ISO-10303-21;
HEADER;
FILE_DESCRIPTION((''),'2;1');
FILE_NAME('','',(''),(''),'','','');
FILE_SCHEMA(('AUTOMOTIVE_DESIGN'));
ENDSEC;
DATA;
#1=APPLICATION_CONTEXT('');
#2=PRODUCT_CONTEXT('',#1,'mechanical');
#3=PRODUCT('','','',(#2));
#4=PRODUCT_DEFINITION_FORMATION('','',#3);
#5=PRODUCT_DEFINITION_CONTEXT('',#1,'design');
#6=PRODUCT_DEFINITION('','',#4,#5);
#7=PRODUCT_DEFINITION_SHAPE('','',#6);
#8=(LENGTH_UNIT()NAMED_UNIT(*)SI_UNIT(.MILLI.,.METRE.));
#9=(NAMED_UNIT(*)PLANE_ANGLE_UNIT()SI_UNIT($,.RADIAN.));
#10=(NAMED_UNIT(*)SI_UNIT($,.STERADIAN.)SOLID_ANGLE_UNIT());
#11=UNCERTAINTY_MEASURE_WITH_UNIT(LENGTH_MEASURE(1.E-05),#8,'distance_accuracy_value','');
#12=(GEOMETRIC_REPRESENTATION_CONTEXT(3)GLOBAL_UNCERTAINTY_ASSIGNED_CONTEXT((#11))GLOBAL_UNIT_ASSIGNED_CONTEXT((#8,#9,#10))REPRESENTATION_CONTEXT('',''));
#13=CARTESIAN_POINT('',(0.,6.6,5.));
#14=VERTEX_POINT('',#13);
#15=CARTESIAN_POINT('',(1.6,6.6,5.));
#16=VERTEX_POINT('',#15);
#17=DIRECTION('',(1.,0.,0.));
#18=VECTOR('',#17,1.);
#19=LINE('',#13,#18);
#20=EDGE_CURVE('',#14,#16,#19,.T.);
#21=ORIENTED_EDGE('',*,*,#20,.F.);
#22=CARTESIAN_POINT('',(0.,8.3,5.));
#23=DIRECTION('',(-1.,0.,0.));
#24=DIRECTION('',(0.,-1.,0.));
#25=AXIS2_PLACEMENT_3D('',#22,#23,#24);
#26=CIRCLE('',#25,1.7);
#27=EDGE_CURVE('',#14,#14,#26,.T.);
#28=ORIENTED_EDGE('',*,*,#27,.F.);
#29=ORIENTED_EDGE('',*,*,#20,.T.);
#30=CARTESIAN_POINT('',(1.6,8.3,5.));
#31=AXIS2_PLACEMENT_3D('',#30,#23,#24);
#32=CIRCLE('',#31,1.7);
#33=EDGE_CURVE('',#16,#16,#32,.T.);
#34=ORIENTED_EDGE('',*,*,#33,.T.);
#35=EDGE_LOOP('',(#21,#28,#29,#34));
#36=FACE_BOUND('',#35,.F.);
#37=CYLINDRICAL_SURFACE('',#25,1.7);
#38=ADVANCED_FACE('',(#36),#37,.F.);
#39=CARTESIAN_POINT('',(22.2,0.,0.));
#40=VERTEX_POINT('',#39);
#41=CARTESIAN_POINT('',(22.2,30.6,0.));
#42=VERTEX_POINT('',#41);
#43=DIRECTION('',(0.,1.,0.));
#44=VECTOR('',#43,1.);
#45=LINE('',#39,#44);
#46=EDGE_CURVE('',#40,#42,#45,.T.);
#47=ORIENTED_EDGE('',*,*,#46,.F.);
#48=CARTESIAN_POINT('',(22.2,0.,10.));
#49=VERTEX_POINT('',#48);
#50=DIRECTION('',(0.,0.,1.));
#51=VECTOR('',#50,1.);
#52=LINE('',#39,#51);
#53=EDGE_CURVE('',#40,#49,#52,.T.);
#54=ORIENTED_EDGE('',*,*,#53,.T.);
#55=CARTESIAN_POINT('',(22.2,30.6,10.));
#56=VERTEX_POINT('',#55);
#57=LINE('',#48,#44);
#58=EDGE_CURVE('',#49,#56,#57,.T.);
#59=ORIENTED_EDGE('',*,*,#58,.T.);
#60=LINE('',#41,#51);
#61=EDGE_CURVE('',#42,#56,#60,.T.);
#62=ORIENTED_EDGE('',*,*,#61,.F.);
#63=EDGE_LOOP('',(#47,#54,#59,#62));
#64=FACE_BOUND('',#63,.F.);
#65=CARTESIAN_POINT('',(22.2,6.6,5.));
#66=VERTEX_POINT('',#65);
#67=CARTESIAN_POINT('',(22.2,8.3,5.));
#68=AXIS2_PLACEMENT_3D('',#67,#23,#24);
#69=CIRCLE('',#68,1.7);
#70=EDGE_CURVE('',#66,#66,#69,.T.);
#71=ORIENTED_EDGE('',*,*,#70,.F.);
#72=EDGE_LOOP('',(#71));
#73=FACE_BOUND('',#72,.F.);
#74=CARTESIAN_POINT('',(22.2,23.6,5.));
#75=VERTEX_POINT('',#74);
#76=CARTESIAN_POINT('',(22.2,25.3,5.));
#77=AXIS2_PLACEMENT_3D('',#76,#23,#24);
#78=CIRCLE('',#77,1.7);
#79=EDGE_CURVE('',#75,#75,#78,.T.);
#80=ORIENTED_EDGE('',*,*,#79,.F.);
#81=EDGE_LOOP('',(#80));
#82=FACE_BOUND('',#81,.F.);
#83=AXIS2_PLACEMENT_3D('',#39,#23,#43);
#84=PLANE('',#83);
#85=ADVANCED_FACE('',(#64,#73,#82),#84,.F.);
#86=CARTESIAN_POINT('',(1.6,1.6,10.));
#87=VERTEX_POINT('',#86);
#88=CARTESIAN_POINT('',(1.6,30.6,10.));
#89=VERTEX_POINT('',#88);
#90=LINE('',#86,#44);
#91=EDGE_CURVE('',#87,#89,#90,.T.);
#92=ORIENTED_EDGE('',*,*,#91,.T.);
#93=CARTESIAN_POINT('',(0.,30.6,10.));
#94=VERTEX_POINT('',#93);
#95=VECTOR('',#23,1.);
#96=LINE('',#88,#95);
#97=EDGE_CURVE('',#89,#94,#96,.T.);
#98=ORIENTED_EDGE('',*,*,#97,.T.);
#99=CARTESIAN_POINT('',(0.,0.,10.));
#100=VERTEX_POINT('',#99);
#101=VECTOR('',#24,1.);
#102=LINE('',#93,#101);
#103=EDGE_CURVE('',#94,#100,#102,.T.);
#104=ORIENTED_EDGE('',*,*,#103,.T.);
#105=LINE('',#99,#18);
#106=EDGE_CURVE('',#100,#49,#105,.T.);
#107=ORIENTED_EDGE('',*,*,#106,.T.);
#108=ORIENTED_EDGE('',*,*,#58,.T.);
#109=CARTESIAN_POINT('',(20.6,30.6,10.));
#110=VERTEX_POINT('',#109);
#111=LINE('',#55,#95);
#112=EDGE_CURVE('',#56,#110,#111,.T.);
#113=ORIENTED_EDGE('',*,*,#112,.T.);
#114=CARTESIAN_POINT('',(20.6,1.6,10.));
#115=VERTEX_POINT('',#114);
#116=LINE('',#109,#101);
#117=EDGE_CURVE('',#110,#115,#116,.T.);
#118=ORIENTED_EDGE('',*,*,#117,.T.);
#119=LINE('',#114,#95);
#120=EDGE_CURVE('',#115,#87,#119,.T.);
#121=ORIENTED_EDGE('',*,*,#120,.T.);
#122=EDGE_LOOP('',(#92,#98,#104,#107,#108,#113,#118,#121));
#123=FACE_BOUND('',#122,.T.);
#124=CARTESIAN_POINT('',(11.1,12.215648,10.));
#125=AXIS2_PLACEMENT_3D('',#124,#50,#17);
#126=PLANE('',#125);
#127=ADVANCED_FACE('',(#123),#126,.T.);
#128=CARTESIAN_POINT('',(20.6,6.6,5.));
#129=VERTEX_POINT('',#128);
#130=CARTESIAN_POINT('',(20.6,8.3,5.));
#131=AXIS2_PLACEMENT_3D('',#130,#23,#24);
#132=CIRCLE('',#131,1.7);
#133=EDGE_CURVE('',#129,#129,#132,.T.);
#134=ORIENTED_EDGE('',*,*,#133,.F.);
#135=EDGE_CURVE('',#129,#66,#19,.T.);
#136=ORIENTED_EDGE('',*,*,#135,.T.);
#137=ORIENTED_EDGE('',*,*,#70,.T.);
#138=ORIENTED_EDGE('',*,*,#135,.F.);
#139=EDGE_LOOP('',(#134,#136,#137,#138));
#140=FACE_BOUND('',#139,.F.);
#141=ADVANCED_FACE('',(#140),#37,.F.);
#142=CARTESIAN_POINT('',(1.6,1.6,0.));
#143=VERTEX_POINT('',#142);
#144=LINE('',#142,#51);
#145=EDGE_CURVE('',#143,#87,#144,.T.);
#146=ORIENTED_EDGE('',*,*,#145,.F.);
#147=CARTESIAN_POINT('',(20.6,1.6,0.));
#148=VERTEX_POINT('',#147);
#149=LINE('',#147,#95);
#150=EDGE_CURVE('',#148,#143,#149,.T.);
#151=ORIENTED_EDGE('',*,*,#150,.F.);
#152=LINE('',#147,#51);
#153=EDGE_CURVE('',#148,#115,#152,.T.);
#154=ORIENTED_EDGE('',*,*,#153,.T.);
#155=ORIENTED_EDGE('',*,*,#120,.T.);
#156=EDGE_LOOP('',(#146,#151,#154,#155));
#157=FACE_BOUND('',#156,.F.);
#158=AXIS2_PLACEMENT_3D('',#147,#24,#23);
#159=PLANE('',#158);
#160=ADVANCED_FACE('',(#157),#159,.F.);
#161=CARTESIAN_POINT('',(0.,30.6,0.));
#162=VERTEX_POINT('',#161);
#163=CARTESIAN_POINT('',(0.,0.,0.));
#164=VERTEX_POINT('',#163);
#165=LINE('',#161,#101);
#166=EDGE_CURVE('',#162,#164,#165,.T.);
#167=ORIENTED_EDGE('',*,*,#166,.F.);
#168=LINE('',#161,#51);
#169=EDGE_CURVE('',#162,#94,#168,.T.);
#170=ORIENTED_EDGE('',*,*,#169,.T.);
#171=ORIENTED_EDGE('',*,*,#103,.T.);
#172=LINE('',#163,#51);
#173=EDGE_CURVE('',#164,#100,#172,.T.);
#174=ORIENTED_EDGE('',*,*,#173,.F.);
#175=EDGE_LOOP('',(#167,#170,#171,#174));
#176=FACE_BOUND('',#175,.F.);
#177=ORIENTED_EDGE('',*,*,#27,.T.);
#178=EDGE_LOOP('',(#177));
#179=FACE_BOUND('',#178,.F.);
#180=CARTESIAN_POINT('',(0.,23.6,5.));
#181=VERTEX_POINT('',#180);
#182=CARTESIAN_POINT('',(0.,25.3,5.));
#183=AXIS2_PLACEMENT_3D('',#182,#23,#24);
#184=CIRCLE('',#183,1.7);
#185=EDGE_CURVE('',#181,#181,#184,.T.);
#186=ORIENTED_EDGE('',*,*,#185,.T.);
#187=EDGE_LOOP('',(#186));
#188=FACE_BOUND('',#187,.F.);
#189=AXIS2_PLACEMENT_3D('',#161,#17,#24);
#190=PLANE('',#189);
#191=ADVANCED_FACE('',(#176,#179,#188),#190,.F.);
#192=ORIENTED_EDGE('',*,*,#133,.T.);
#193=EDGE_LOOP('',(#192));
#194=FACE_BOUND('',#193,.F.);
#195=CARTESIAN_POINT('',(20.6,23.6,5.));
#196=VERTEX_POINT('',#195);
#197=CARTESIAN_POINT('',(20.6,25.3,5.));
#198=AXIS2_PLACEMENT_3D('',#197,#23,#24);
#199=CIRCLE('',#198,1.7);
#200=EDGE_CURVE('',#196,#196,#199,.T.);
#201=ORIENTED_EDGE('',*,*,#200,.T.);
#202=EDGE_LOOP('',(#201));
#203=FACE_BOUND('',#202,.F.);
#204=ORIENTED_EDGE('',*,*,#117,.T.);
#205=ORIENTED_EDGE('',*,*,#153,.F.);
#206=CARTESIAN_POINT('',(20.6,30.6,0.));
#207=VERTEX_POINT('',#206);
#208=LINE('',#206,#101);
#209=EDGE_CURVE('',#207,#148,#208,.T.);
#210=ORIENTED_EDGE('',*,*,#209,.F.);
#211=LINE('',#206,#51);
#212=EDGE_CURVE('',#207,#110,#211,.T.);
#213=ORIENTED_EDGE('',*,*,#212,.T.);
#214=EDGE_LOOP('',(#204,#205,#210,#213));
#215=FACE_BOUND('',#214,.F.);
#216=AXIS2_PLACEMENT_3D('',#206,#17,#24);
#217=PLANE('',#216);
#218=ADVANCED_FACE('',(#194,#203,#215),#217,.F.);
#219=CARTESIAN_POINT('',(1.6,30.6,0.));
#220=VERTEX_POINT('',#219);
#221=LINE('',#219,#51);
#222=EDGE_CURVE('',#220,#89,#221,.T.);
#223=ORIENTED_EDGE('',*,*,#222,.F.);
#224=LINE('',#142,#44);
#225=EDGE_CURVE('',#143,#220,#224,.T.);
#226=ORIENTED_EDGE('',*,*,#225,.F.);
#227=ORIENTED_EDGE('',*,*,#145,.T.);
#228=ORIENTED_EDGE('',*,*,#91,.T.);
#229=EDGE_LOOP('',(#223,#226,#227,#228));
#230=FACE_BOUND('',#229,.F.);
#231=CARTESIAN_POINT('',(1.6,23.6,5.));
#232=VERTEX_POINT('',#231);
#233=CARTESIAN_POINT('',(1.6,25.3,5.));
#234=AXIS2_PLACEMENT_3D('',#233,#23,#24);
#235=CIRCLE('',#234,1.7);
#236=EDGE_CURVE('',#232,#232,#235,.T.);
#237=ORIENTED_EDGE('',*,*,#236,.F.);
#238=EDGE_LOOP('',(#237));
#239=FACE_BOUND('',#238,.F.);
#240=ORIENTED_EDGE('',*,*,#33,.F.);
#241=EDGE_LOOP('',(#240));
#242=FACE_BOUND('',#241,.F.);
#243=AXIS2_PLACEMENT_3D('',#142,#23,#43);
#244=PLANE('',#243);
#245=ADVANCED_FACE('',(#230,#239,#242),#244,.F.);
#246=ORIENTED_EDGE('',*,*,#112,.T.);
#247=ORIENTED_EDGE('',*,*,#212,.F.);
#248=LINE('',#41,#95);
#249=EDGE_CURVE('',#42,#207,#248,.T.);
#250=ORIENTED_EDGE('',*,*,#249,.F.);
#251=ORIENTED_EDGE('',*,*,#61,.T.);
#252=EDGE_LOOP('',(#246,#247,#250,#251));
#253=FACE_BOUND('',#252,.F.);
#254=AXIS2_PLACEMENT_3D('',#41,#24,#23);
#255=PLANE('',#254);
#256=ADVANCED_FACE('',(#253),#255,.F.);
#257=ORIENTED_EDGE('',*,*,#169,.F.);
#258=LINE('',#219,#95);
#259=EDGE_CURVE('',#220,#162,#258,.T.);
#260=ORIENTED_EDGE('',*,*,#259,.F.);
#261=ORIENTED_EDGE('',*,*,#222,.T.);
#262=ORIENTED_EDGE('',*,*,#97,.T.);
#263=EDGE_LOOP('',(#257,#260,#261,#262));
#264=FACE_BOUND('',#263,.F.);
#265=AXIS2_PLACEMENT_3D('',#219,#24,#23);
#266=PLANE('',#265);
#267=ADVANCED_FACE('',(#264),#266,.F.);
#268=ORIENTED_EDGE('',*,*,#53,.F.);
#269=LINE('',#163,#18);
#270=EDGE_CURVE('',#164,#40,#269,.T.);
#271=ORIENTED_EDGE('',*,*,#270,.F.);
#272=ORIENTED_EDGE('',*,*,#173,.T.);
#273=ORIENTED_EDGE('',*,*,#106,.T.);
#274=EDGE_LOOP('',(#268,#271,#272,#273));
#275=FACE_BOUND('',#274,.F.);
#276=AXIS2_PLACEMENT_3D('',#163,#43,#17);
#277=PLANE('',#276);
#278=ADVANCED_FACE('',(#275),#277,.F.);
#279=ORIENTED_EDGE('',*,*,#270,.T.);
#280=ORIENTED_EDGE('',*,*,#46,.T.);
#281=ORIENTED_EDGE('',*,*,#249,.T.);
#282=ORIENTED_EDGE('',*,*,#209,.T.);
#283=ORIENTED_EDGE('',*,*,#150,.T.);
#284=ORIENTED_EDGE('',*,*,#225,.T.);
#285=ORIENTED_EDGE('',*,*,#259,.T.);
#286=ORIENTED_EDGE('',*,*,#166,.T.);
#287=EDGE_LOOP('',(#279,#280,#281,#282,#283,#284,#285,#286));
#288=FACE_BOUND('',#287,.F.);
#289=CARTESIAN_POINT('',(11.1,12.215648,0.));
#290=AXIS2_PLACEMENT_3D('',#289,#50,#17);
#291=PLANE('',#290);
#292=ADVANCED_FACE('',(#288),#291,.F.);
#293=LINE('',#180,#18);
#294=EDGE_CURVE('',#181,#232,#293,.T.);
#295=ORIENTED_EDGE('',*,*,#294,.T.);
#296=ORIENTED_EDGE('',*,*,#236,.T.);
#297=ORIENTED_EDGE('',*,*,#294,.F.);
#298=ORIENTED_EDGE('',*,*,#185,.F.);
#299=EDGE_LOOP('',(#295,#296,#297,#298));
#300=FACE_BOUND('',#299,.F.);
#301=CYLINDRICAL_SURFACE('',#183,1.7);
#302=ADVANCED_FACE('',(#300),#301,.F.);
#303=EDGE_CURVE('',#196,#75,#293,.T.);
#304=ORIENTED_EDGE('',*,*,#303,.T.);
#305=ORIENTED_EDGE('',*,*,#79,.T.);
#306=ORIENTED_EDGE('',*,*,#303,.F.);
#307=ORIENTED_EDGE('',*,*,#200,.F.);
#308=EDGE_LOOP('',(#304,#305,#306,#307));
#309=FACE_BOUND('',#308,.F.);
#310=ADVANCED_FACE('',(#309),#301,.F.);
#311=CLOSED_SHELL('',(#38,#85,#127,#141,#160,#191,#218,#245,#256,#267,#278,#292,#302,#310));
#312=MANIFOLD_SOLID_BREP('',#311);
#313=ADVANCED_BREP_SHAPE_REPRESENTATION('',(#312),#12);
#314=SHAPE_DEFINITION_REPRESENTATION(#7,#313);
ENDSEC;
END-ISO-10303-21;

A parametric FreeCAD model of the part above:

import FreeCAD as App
import Part
import Sketcher
from FreeCAD import Vector
Q = App.Units.Quantity


def add_polygon(sketch, points):
    """Adds a closed chain of lines whose ends are joined by coincident constraints."""
    first, n = sketch.GeometryCount, len(points)
    for a, b in zip(points, points[1:] + points[:1]):
        sketch.addGeometry(Part.LineSegment(App.Vector(*a, 0), App.Vector(*b, 0)), False)
    for i in range(n):
        sketch.addConstraint(Sketcher.Constraint("Coincident", first + i, 2, first + (i + 1) % n, 1))

doc = App.newDocument("Part")
body = doc.addObject("PartDesign::Body", "Body")

sketch1 = body.newObject("Sketcher::SketchObject", "Sketch")
sketch1.AttachmentSupport = (doc.getObject("XY_Plane"), [""])
sketch1.MapMode = "FlatFace"
add_polygon(sketch1, [(0, 0), (22.2, 0), (22.2, 30.6), (20.6, 30.6), (20.6, 1.6), (1.6, 1.6), (1.6, 30.6), (0, 30.6)])
sketch1.addConstraint([
    Sketcher.Constraint("Horizontal", 0),
    Sketcher.Constraint("Vertical", 1),
    Sketcher.Constraint("Horizontal", 2),
    Sketcher.Constraint("Vertical", 3),
    Sketcher.Constraint("Horizontal", 4),
    Sketcher.Constraint("Vertical", 5),
    Sketcher.Constraint("Horizontal", 6),
    Sketcher.Constraint("Vertical", 7),
    Sketcher.Constraint("Coincident", 7, 2, -1, 1),
    Sketcher.Constraint("Horizontal", 2, 2, 5, 2),
    Sketcher.Constraint("Equal", 2, 6),
    Sketcher.Constraint("DistanceX", 4, 2, 4, 1, Q("19 mm")),
    Sketcher.Constraint("DistanceY", 3, 2, 3, 1, Q("29 mm")),
    Sketcher.Constraint("DistanceX", 0, 1, 0, 2, Q("22.2 mm")),
    Sketcher.Constraint("DistanceY", 1, 1, 1, 2, Q("30.6 mm")),
])
pad1 = body.newObject("PartDesign::Pad", "Pad")
pad1.Profile = sketch1
pad1.Length = 10

sketch2 = body.newObject("Sketcher::SketchObject", "Sketch001")
sketch2.AttachmentSupport = (doc.getObject("YZ_Plane"), [""])
sketch2.MapMode = "FlatFace"
sketch2.addGeometry([
    Part.Circle(Vector(25.3, 5, 0), Vector(0, 0, 1), 1.7),
    Part.Circle(Vector(8.3, 5, 0), Vector(0, 0, 1), 1.7),
], False)
sketch2.addConstraint([
    Sketcher.Constraint("Equal", 0, 1),
    Sketcher.Constraint("Horizontal", 0, 3, 1, 3),
    Sketcher.Constraint("Diameter", 0, Q("3.4 mm")),
    Sketcher.Constraint("DistanceY", -1, 1, 0, 3, Q("5 mm")),
    Sketcher.Constraint("DistanceX", 1, 3, 0, 3, Q("17 mm")),
    Sketcher.Constraint("DistanceX", -1, 1, 0, 3, Q("25.3 mm")),
])
pocket1 = body.newObject("PartDesign::Pocket", "Pocket")
pocket1.Profile = sketch2
pocket1.Type = "ThroughAll"
pocket1.Reversed = True

doc.recompute()
